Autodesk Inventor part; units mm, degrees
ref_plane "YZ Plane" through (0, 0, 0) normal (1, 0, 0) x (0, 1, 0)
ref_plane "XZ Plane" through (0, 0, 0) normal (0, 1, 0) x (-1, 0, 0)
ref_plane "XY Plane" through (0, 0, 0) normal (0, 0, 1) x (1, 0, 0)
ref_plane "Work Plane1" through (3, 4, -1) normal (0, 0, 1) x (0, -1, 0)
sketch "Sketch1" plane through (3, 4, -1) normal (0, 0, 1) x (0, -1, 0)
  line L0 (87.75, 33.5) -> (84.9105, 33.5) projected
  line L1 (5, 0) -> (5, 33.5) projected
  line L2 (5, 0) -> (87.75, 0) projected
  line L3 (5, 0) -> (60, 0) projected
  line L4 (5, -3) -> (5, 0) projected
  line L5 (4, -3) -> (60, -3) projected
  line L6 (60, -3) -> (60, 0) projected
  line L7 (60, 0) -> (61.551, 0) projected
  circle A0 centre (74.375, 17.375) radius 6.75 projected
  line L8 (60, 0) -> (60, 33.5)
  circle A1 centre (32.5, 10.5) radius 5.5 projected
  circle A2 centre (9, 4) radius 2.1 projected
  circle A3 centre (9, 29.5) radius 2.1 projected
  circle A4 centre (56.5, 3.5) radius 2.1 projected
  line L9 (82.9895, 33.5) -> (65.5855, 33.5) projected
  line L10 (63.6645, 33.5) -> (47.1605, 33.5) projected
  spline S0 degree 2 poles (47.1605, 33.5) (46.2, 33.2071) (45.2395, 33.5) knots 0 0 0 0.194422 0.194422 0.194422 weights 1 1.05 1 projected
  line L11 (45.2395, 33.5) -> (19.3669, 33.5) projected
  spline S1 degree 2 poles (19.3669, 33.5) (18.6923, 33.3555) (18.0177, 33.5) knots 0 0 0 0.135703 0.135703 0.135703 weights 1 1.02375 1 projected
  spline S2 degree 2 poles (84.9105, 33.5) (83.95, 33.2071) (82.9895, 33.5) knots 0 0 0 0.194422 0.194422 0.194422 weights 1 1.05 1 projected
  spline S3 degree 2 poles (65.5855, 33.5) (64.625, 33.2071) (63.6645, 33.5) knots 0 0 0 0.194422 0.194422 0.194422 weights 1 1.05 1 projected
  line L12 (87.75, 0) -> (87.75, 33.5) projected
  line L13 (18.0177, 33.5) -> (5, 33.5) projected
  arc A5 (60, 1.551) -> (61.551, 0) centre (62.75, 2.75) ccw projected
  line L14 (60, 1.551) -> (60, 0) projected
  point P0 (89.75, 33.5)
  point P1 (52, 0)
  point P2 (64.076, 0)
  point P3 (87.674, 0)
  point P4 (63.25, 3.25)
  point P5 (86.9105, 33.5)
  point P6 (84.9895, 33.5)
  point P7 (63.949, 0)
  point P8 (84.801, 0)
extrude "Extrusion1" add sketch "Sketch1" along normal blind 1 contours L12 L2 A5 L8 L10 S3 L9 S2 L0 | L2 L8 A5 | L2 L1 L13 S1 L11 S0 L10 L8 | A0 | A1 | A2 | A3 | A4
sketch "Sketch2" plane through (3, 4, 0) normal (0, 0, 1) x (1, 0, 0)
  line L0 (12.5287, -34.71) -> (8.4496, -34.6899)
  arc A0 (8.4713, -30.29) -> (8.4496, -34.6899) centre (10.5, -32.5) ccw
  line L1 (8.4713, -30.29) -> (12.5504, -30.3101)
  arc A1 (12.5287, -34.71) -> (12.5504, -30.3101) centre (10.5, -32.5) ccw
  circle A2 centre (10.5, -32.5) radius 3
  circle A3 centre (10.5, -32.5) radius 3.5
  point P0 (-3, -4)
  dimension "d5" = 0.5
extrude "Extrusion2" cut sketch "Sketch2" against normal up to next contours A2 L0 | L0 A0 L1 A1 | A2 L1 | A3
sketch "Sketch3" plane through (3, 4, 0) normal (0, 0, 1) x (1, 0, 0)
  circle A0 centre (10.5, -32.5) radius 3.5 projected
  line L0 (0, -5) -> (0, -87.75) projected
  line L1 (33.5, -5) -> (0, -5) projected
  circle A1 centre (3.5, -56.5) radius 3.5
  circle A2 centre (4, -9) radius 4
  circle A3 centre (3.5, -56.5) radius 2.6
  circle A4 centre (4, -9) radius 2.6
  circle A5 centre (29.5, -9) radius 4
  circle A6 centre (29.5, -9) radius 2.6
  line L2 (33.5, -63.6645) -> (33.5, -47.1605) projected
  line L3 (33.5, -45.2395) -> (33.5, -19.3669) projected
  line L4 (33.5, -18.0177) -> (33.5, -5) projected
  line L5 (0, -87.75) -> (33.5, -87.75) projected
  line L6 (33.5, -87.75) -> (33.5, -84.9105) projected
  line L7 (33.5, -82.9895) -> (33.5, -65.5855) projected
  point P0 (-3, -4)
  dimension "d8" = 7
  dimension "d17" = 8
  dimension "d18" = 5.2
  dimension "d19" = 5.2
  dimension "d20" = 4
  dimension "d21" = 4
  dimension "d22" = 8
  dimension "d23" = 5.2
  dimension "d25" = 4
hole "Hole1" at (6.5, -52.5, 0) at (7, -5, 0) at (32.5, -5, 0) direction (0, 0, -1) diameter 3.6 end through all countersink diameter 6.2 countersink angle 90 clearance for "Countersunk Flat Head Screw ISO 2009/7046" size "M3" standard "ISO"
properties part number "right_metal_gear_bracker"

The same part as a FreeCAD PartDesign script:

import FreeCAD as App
import Part
import Sketcher

doc = App.newDocument("Part")
params = doc.addObject("Spreadsheet::Sheet", "Params")
for row, (alias, value) in enumerate([
    ("sketch1_width", "33.5 mm"),
    ("sketch1_height", "82.75 mm"),
    ("pad1_length", "1 mm"),
    ("sketch2_diameter", "7 mm"),
    ("sketch3_diameter", "3.6 mm"),
    ("hole_diameter", "3.6 mm"),
    ("hole_csink_diameter", "6.2 mm"),
], start=1):
    params.set(f"A{row}", alias)
    params.set(f"B{row}", "=" + value)
    params.setAlias(f"B{row}", alias)

body = doc.addObject("PartDesign::Body", "Body")

# Sketch on XY plane
sketch1 = body.newObject("Sketcher::SketchObject", "Sketch")
sketch1.AttachmentSupport = (doc.getObject("XY_Plane"), [""])
sketch1.MapMode = "FlatFace"
sketch1.AttachmentOffset = App.Placement(App.Vector(0, 0, -1), App.Rotation())
sketch1.addGeometry([
    Part.LineSegment(App.Vector(3, -83.75, 0), App.Vector(36.5, -83.75, 0)),  # 0
    Part.LineSegment(App.Vector(36.5, -83.75, 0), App.Vector(36.5, -80.9105, 0)),  # 1
    Part.BSplineCurve([App.Vector(36.5, -80.9105, 0), App.Vector(36.2071, -79.95, 0), App.Vector(36.5, -78.9895, 0)], [3, 3], [0, 0.194422], False, 2, [1, 1.05, 1], False),  # 2
    Part.LineSegment(App.Vector(36.5, -78.9895, 0), App.Vector(36.5, -61.5855, 0)),  # 3
    Part.BSplineCurve([App.Vector(36.5, -61.5855, 0), App.Vector(36.2071, -60.625, 0), App.Vector(36.5, -59.6645, 0)], [3, 3], [0, 0.194422], False, 2, [1, 1.05, 1], False),  # 4
    Part.LineSegment(App.Vector(36.5, -59.6645, 0), App.Vector(36.5, -43.1605, 0)),  # 5
    Part.BSplineCurve([App.Vector(36.5, -43.1605, 0), App.Vector(36.2071, -42.2, 0), App.Vector(36.5, -41.2395, 0)], [3, 3], [0, 0.194422], False, 2, [1, 1.05, 1], False),  # 6
    Part.LineSegment(App.Vector(36.5, -41.2395, 0), App.Vector(36.5, -15.3669, 0)),  # 7
    Part.BSplineCurve([App.Vector(36.5, -15.3669, 0), App.Vector(36.3555, -14.6923, 0), App.Vector(36.5, -14.0177, 0)], [3, 3], [0, 0.135703], False, 2, [1, 1.02375, 1], False),  # 8
    Part.LineSegment(App.Vector(36.5, -14.0177, 0), App.Vector(36.5, -1, 0)),  # 9
    Part.LineSegment(App.Vector(36.5, -1, 0), App.Vector(3, -1, 0)),  # 10
    Part.LineSegment(App.Vector(3, -1, 0), App.Vector(3, -83.75, 0)),  # 11
], False)
sketch1.addConstraint([
    Sketcher.Constraint("Block", 2),
    Sketcher.Constraint("Block", 4),
    Sketcher.Constraint("Block", 6),
    Sketcher.Constraint("Block", 8),
    Sketcher.Constraint("Coincident", 0, 2, 1, 1),
    Sketcher.Constraint("Coincident", 1, 2, 2, 1),
    Sketcher.Constraint("Coincident", 2, 2, 3, 1),
    Sketcher.Constraint("Coincident", 3, 2, 4, 1),
    Sketcher.Constraint("Coincident", 4, 2, 5, 1),
    Sketcher.Constraint("Coincident", 5, 2, 6, 1),
    Sketcher.Constraint("Coincident", 6, 2, 7, 1),
    Sketcher.Constraint("Coincident", 7, 2, 8, 1),
    Sketcher.Constraint("Coincident", 8, 2, 9, 1),
    Sketcher.Constraint("Coincident", 9, 2, 10, 1),
    Sketcher.Constraint("Coincident", 10, 2, 11, 1),
    Sketcher.Constraint("Coincident", 11, 2, 0, 1),
    Sketcher.Constraint("Horizontal", 0),
    Sketcher.Constraint("Vertical", 1),
    Sketcher.Constraint("Vertical", 9),
    Sketcher.Constraint("Horizontal", 10),
    Sketcher.Constraint("Vertical", 11),
    Sketcher.Constraint("DistanceX", 0, 1, 0, 2, 33.5),
    Sketcher.Constraint("DistanceY", 9, 2, -1, 1, 1.0),
    Sketcher.Constraint("DistanceY", 11, 2, 11, 1, 82.75),
])
sketch1.setExpression("Constraints[21]", "Params.sketch1_width")
sketch1.setExpression("Constraints[23]", "Params.sketch1_height")
pad1 = body.newObject("PartDesign::Pad", "Pad")
pad1.Profile = sketch1
pad1.setExpression("Length", "Params.pad1_length")

# Sketch on XY plane
sketch2 = body.newObject("Sketcher::SketchObject", "Sketch001")
sketch2.AttachmentSupport = (doc.getObject("XY_Plane"), [""])
sketch2.MapMode = "FlatFace"
sketch2.addGeometry(Part.Circle(App.Vector(13.5, -28.5, 0), App.Vector(0, 0, 1), 3.5), False)
sketch2.addConstraint([
    Sketcher.Constraint("Diameter", 0, 7.0),
    Sketcher.Constraint("DistanceX", -1, 1, 0, 3, 13.5),
    Sketcher.Constraint("DistanceY", 0, 3, -1, 1, 28.5),
])
sketch2.setExpression("Constraints[0]", "Params.sketch2_diameter")
pocket1 = body.newObject("PartDesign::Pocket", "Pocket")
pocket1.Profile = sketch2
pocket1.Type = "UpToFirst"

# Sketch on XY plane
sketch3 = body.newObject("Sketcher::SketchObject", "Sketch002")
sketch3.AttachmentSupport = (doc.getObject("XY_Plane"), [""])
sketch3.MapMode = "FlatFace"
sketch3.addGeometry([
    Part.Circle(App.Vector(6.5, -52.5, 0), App.Vector(0, 0, 1), 1.8),
    Part.Circle(App.Vector(7, -5, 0), App.Vector(0, 0, 1), 1.8),
    Part.Circle(App.Vector(32.5, -5, 0), App.Vector(0, 0, 1), 1.8),
], False)
sketch3.addConstraint([
    Sketcher.Constraint("Equal", 0, 1),
    Sketcher.Constraint("Equal", 1, 2),
    Sketcher.Constraint("Horizontal", 1, 3, 2, 3),
    Sketcher.Constraint("Diameter", 0, 3.6),
    Sketcher.Constraint("DistanceX", -1, 1, 1, 3, 7.0),
    Sketcher.Constraint("DistanceY", 1, 3, -1, 1, 5.0),
    Sketcher.Constraint("DistanceX", 0, 3, 2, 3, 26.0),
    Sketcher.Constraint("DistanceX", -1, 1, 0, 3, 6.5),
    Sketcher.Constraint("DistanceY", 0, 3, -1, 1, 52.5),
])
sketch3.setExpression("Constraints[3]", "Params.sketch3_diameter")
doc.recompute()
hole = body.newObject("PartDesign::Hole", "Hole")
hole.Profile = sketch3
hole.ThreadType = "None"
hole.setExpression("Diameter", "Params.hole_diameter")
hole.DepthType = "ThroughAll"
hole.HoleCutType = "Countersink"
hole.setExpression("HoleCutDiameter", "Params.hole_csink_diameter")
hole.HoleCutCountersinkAngle = 90

doc.recompute()
